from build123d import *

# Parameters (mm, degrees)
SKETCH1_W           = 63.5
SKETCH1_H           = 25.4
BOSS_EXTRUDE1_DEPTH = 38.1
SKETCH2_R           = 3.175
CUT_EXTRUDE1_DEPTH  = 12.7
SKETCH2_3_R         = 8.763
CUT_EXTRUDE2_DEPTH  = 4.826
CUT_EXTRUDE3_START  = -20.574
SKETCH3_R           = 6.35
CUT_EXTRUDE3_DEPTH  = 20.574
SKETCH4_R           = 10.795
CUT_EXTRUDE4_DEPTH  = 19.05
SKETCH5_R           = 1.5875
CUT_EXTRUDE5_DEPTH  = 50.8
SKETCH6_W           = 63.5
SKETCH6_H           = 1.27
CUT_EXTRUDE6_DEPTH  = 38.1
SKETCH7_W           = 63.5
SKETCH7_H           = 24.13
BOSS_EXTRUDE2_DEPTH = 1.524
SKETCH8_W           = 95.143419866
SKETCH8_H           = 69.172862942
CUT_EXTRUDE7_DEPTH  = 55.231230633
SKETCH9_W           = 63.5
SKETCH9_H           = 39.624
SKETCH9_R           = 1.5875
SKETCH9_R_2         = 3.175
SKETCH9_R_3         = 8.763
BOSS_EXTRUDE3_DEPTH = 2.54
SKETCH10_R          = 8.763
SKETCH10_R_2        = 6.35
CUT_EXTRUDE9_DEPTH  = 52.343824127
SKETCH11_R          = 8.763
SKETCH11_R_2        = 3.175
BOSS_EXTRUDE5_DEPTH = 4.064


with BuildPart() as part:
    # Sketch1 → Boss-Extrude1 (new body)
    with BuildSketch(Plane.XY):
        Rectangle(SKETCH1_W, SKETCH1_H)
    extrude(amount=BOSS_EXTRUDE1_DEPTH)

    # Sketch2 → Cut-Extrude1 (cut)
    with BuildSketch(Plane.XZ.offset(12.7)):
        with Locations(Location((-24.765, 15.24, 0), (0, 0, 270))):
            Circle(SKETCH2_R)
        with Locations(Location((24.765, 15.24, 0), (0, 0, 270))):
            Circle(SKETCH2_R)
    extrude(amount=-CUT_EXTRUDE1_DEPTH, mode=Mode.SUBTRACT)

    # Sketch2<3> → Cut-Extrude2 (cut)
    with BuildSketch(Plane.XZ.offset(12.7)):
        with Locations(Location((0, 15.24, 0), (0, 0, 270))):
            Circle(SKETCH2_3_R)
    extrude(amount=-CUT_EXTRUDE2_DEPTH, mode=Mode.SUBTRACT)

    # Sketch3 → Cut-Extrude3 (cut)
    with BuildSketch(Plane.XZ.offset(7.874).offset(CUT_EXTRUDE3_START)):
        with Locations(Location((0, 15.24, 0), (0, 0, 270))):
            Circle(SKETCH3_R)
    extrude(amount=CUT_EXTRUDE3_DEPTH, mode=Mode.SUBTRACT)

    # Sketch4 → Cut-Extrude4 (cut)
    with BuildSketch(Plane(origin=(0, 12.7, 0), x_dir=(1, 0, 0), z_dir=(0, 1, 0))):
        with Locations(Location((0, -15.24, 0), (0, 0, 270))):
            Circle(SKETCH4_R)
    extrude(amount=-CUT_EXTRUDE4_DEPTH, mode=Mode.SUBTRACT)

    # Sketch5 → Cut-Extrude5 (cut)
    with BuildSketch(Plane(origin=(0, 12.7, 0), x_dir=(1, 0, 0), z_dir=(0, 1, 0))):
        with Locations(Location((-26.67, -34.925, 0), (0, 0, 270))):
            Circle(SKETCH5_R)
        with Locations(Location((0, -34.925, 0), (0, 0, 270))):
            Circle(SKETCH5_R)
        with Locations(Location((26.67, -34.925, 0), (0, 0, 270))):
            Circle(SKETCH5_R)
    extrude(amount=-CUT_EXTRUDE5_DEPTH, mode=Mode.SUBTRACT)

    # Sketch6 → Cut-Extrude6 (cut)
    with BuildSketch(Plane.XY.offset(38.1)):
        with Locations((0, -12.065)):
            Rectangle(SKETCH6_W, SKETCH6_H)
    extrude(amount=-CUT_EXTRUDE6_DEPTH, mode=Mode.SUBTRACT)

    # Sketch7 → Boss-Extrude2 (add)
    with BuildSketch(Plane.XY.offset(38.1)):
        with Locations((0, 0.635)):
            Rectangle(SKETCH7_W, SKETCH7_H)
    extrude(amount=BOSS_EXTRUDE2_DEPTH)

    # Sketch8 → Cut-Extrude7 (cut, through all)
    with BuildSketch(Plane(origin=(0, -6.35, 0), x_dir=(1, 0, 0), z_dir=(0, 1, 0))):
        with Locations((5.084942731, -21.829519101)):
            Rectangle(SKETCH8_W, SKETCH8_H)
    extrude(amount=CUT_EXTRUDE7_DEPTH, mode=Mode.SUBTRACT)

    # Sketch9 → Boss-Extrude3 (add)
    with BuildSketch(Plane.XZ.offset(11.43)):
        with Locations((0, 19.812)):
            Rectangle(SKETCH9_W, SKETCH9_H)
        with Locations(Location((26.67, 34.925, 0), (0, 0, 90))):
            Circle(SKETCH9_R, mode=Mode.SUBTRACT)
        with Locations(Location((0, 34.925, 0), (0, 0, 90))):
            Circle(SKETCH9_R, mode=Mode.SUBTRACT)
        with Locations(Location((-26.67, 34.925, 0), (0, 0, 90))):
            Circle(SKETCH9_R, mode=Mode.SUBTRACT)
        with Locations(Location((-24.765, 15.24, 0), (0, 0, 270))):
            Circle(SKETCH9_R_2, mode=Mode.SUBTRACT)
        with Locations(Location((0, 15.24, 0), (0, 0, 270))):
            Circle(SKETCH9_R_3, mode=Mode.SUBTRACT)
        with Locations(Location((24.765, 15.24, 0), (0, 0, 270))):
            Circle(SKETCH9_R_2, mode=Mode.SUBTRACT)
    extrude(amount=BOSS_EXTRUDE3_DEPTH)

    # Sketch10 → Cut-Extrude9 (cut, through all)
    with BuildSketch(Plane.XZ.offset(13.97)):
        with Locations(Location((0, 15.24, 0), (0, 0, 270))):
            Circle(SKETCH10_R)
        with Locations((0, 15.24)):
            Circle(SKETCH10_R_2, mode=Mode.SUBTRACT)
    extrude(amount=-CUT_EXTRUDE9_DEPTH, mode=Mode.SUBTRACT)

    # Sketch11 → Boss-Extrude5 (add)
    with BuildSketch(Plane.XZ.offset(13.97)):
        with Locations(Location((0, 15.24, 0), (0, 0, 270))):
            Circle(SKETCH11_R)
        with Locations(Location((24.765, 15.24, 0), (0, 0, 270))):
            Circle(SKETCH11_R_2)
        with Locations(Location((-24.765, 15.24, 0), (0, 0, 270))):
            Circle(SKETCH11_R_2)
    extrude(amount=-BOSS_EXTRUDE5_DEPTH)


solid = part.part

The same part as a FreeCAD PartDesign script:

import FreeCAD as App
import Part
import Sketcher
Q = App.Units.Quantity


def add_polygon(sketch, points):
    """Adds a closed chain of lines whose ends are joined by coincident constraints."""
    first, n = sketch.GeometryCount, len(points)
    for a, b in zip(points, points[1:] + points[:1]):
        sketch.addGeometry(Part.LineSegment(App.Vector(*a, 0), App.Vector(*b, 0)), False)
    for i in range(n):
        sketch.addConstraint(Sketcher.Constraint("Coincident", first + i, 2, first + (i + 1) % n, 1))

doc = App.newDocument("Part")
body = doc.addObject("PartDesign::Body", "Body")

# Sketch on XY plane
sketch1 = doc.addObject("Sketcher::SketchObject", "Sketch")
body.addObject(sketch1)
sketch1.AttachmentSupport = (doc.XY_Plane, [""])
sketch1.MapMode = "FlatFace"
add_polygon(sketch1, [(-32, 13), (-32, -13), (32, -13), (32, 13)])  # lines 0-3
sketch1.addConstraint([
    Sketcher.Constraint("Vertical", 0),
    Sketcher.Constraint("Horizontal", 1),
    Sketcher.Constraint("Vertical", 2),
    Sketcher.Constraint("Horizontal", 3),
    Sketcher.Constraint("Symmetric", 0, 2, 2, 2, -1, 1),
    Sketcher.Constraint("DistanceY", 0, 2, 0, 1, Q("1 in")),
    Sketcher.Constraint("DistanceX", 1, 1, 1, 2, Q("2.5 in")),
])
pad1 = doc.addObject("PartDesign::Pad", "Pad")
body.addObject(pad1)
pad1.Profile = sketch1
pad1.Length = Q("1.5 in")

# Sketch on XZ plane
sketch2 = doc.addObject("Sketcher::SketchObject", "Sketch001")
body.addObject(sketch2)
sketch2.AttachmentSupport = (doc.XZ_Plane, [""])
sketch2.MapMode = "FlatFace"
sketch2.AttachmentOffset = App.Placement(App.Vector(0, 0, 0.5 * 25.4), App.Rotation())
sketch2.addGeometry([
    Part.Circle(App.Vector(-24.8, 15.2, 0), App.Vector(0, 0, 1), 3.2),
    Part.Circle(App.Vector(24.8, 15.2, 0), App.Vector(0, 0, 1), 3.2),
], False)
sketch2.addConstraint([
    Sketcher.Constraint("Equal", 0, 1),
    Sketcher.Constraint("Symmetric", 0, 3, 1, 3, -2),
    Sketcher.Constraint("Diameter", 0, Q("0.25 in")),
    Sketcher.Constraint("DistanceY", -1, 1, 0, 3, Q("0.6 in")),
    Sketcher.Constraint("DistanceX", 0, 3, 1, 3, Q("1.95 in")),
])
pocket1 = doc.addObject("PartDesign::Pocket", "Pocket")
body.addObject(pocket1)
pocket1.Profile = sketch2
pocket1.Length = Q("0.5 in")

# Sketch on XZ plane
sketch3 = doc.addObject("Sketcher::SketchObject", "Sketch002")
body.addObject(sketch3)
sketch3.AttachmentSupport = (doc.XZ_Plane, [""])
sketch3.MapMode = "FlatFace"
sketch3.AttachmentOffset = App.Placement(App.Vector(0, 0, 0.5 * 25.4), App.Rotation())
sketch3.addGeometry(Part.Circle(App.Vector(0, 15, 0), App.Vector(0, 0, 1), 9), False)
sketch3.addConstraint([
    Sketcher.Constraint("PointOnObject", 0, 3, -2),
    Sketcher.Constraint("Diameter", 0, Q("0.69 in")),
    Sketcher.Constraint("DistanceY", -1, 1, 0, 3, Q("0.6 in")),
])
pocket2 = doc.addObject("PartDesign::Pocket", "Pocket001")
body.addObject(pocket2)
pocket2.Profile = sketch3
pocket2.Length = Q("0.19 in")

# Sketch on XZ plane
sketch4 = doc.addObject("Sketcher::SketchObject", "Sketch003")
body.addObject(sketch4)
sketch4.AttachmentSupport = (doc.XZ_Plane, [""])
sketch4.MapMode = "FlatFace"
sketch4.AttachmentOffset = App.Placement(App.Vector(0, 0, -0.5 * 25.4), App.Rotation())
sketch4.addGeometry(Part.Circle(App.Vector(0, 15, 0), App.Vector(0, 0, 1), 6), False)
sketch4.addConstraint([
    Sketcher.Constraint("PointOnObject", 0, 3, -2),
    Sketcher.Constraint("Diameter", 0, Q("0.5 in")),
    Sketcher.Constraint("DistanceY", -1, 1, 0, 3, Q("0.6 in")),
])
pocket3 = doc.addObject("PartDesign::Pocket", "Pocket002")
body.addObject(pocket3)
pocket3.Profile = sketch4
pocket3.Length = Q("0.81 in")
pocket3.Reversed = True

# Sketch on XZ plane
sketch5 = doc.addObject("Sketcher::SketchObject", "Sketch004")
body.addObject(sketch5)
sketch5.AttachmentSupport = (doc.XZ_Plane, [""])
sketch5.MapMode = "FlatFace"
sketch5.AttachmentOffset = App.Placement(App.Vector(0, 0, -0.5 * 25.4), App.Rotation())
sketch5.addGeometry(Part.Circle(App.Vector(0, 15, 0), App.Vector(0, 0, 1), 11), False)
sketch5.addConstraint([
    Sketcher.Constraint("PointOnObject", 0, 3, -2),
    Sketcher.Constraint("Diameter", 0, Q("0.85 in")),
    Sketcher.Constraint("DistanceY", -1, 1, 0, 3, Q("0.6 in")),
])
pocket4 = doc.addObject("PartDesign::Pocket", "Pocket003")
body.addObject(pocket4)
pocket4.Profile = sketch5
pocket4.Length = Q("0.75 in")
pocket4.Reversed = True

# Sketch on XZ plane
sketch6 = doc.addObject("Sketcher::SketchObject", "Sketch005")
body.addObject(sketch6)
sketch6.AttachmentSupport = (doc.XZ_Plane, [""])
sketch6.MapMode = "FlatFace"
sketch6.AttachmentOffset = App.Placement(App.Vector(0, 0, -0.5 * 25.4), App.Rotation())
sketch6.addGeometry([
    Part.Circle(App.Vector(-26.7, 34.9, 0), App.Vector(0, 0, 1), 1.6),
    Part.Circle(App.Vector(0, 34.9, 0), App.Vector(0, 0, 1), 1.6),
    Part.Circle(App.Vector(26.7, 34.9, 0), App.Vector(0, 0, 1), 1.6),
], False)
sketch6.addConstraint([
    Sketcher.Constraint("Equal", 0, 1),
    Sketcher.Constraint("Equal", 1, 2),
    Sketcher.Constraint("Symmetric", 0, 3, 2, 3, -2),
    Sketcher.Constraint("PointOnObject", 1, 3, -2),
    Sketcher.Constraint("Horizontal", 0, 3, 1, 3),
    Sketcher.Constraint("Diameter", 0, Q("0.125 in")),
    Sketcher.Constraint("DistanceX", 0, 3, 2, 3, Q("2.1 in")),
    Sketcher.Constraint("DistanceY", -1, 1, 0, 3, Q("1.375 in")),
])
pocket5 = doc.addObject("PartDesign::Pocket", "Pocket004")
body.addObject(pocket5)
pocket5.Profile = sketch6
pocket5.Length = Q("2 in")
pocket5.Reversed = True

# Sketch on XY plane
sketch7 = doc.addObject("Sketcher::SketchObject", "Sketch006")
body.addObject(sketch7)
sketch7.AttachmentSupport = (doc.XY_Plane, [""])
sketch7.MapMode = "FlatFace"
sketch7.AttachmentOffset = App.Placement(App.Vector(0, 0, 1.5 * 25.4), App.Rotation())
add_polygon(sketch7, [(-31.8, -11.4), (-31.8, -12.7), (31.8, -12.7), (31.8, -11.4)])  # lines 0-3
sketch7.addConstraint([
    Sketcher.Constraint("Vertical", 0),
    Sketcher.Constraint("Horizontal", 1),
    Sketcher.Constraint("Vertical", 2),
    Sketcher.Constraint("Horizontal", 3),
    Sketcher.Constraint("DistanceX", 1, 1, 1, 2, Q("2.5 in")),
    Sketcher.Constraint("DistanceY", 0, 2, 0, 1, Q("0.05 in")),
    Sketcher.Constraint("DistanceY", 0, 2, -1, 1, Q("0.5 in")),
    Sketcher.Constraint("DistanceX", 0, 2, -1, 1, Q("1.25 in")),
])
pocket6 = doc.addObject("PartDesign::Pocket", "Pocket005")
body.addObject(pocket6)
pocket6.Profile = sketch7
pocket6.Length = Q("1.5 in")

# Sketch on XY plane
sketch8 = doc.addObject("Sketcher::SketchObject", "Sketch007")
body.addObject(sketch8)
sketch8.AttachmentSupport = (doc.XY_Plane, [""])
sketch8.MapMode = "FlatFace"
sketch8.AttachmentOffset = App.Placement(App.Vector(0, 0, 1.5 * 25.4), App.Rotation())
add_polygon(sketch8, [(-32, 13), (-32, -11), (32, -11), (32, 13)])  # lines 0-3
sketch8.addConstraint([
    Sketcher.Constraint("Vertical", 0),
    Sketcher.Constraint("Horizontal", 1),
    Sketcher.Constraint("Vertical", 2),
    Sketcher.Constraint("Horizontal", 3),
    Sketcher.Constraint("DistanceX", 1, 1, 1, 2, Q("2.5 in")),
    Sketcher.Constraint("DistanceY", 0, 2, 0, 1, Q("0.95 in")),
    Sketcher.Constraint("DistanceY", -1, 1, 2, 2, Q("0.5 in")),
    Sketcher.Constraint("DistanceX", 0, 2, -1, 1, Q("1.25 in")),
])
pad2 = doc.addObject("PartDesign::Pad", "Pad001")
body.addObject(pad2)
pad2.Profile = sketch8
pad2.Length = Q("0.06 in")

# Sketch on XZ plane
sketch9 = doc.addObject("Sketcher::SketchObject", "Sketch008")
body.addObject(sketch9)
sketch9.AttachmentSupport = (doc.XZ_Plane, [""])
sketch9.MapMode = "FlatFace"
sketch9.AttachmentOffset = App.Placement(App.Vector(0, 0, 0.25 * 25.4), App.Rotation())
add_polygon(sketch9, [(-42, -13), (-42, 56), (53, 56), (53, -13)])  # lines 0-3
sketch9.addConstraint([
    Sketcher.Constraint("Vertical", 0),
    Sketcher.Constraint("Horizontal", 1),
    Sketcher.Constraint("Vertical", 2),
    Sketcher.Constraint("Horizontal", 3),
    Sketcher.Constraint("DistanceX", 1, 1, 1, 2, Q("95.14342 mm")),
    Sketcher.Constraint("DistanceY", 0, 1, 0, 2, Q("69.172863 mm")),
    Sketcher.Constraint("DistanceY", -1, 1, 0, 2, Q("56.415951 mm")),
    Sketcher.Constraint("DistanceX", 0, 2, -1, 1, Q("42.486767 mm")),
])
pocket7 = doc.addObject("PartDesign::Pocket", "Pocket006")
body.addObject(pocket7)
pocket7.Profile = sketch9
pocket7.Type = "ThroughAll"

# Sketch on XZ plane
sketch10 = doc.addObject("Sketcher::SketchObject", "Sketch009")
body.addObject(sketch10)
sketch10.AttachmentSupport = (doc.XZ_Plane, [""])
sketch10.MapMode = "FlatFace"
sketch10.AttachmentOffset = App.Placement(App.Vector(0, 0, 0.45 * 25.4), App.Rotation())
add_polygon(sketch10, [(-31.8, 39.6), (-31.8, 0), (31.8, 0), (31.8, 39.6)])  # lines 0-3
sketch10.addGeometry(Part.Circle(App.Vector(-24.8, 15.2, 0), App.Vector(0, 0, 1), 3.2), False)  # 4
sketch10.addGeometry(Part.Circle(App.Vector(0, 15.2, 0), App.Vector(0, 0, 1), 8.8), False)  # 5
sketch10.addGeometry(Part.Circle(App.Vector(24.8, 15.2, 0), App.Vector(0, 0, 1), 3.2), False)  # 6
sketch10.addGeometry(Part.Circle(App.Vector(-26.7, 34.9, 0), App.Vector(0, 0, 1), 1.6), False)  # 7
sketch10.addGeometry(Part.Circle(App.Vector(0, 34.9, 0), App.Vector(0, 0, 1), 1.6), False)  # 8
sketch10.addGeometry(Part.Circle(App.Vector(26.7, 34.9, 0), App.Vector(0, 0, 1), 1.6), False)  # 9
sketch10.addConstraint([
    Sketcher.Constraint("Vertical", 0),
    Sketcher.Constraint("Horizontal", 1),
    Sketcher.Constraint("Vertical", 2),
    Sketcher.Constraint("Horizontal", 3),
    Sketcher.Constraint("Equal", 4, 6),
    Sketcher.Constraint("Equal", 7, 8),
    Sketcher.Constraint("Equal", 8, 9),
    Sketcher.Constraint("Symmetric", 0, 2, 1, 2, -1, 1),
    Sketcher.Constraint("Symmetric", 4, 3, 6, 3, -2),
    Sketcher.Constraint("Symmetric", 7, 3, 9, 3, -2),
    Sketcher.Constraint("PointOnObject", 5, 3, -2),
    Sketcher.Constraint("PointOnObject", 8, 3, -2),
    Sketcher.Constraint("Horizontal", 4, 3, 5, 3),
    Sketcher.Constraint("Horizontal", 7, 3, 8, 3),
    Sketcher.Constraint("Diameter", 4, Q("0.25 in")),
    Sketcher.Constraint("Diameter", 5, Q("0.69 in")),
    Sketcher.Constraint("Diameter", 7, Q("0.125 in")),
    Sketcher.Constraint("DistanceX", 1, 1, 1, 2, Q("2.5 in")),
    Sketcher.Constraint("DistanceY", 0, 2, 0, 1, Q("1.56 in")),
    Sketcher.Constraint("DistanceY", -1, 1, 4, 3, Q("0.6 in")),
    Sketcher.Constraint("DistanceX", 7, 3, 9, 3, Q("2.1 in")),
    Sketcher.Constraint("DistanceX", 4, 3, 6, 3, Q("1.95 in")),
    Sketcher.Constraint("DistanceY", -1, 1, 7, 3, Q("1.375 in")),
])
pad3 = doc.addObject("PartDesign::Pad", "Pad002")
body.addObject(pad3)
pad3.Profile = sketch10
pad3.Length = Q("0.1 in")

# Sketch on XZ plane
sketch11 = doc.addObject("Sketcher::SketchObject", "Sketch010")
body.addObject(sketch11)
sketch11.AttachmentSupport = (doc.XZ_Plane, [""])
sketch11.MapMode = "FlatFace"
sketch11.AttachmentOffset = App.Placement(App.Vector(0, 0, 0.55 * 25.4), App.Rotation())
sketch11.addGeometry([
    Part.Circle(App.Vector(0, 15, 0), App.Vector(0, 0, 1), 9),
    Part.Circle(App.Vector(0, 15, 0), App.Vector(0, 0, 1), 6),
], False)
sketch11.addConstraint([
    Sketcher.Constraint("Coincident", 1, 3, 0, 3),
    Sketcher.Constraint("PointOnObject", 0, 3, -2),
    Sketcher.Constraint("Diameter", 1, Q("0.5 in")),
    Sketcher.Constraint("Diameter", 0, Q("0.69 in")),
    Sketcher.Constraint("DistanceY", -1, 1, 0, 3, Q("0.6 in")),
])
pocket8 = doc.addObject("PartDesign::Pocket", "Pocket007")
body.addObject(pocket8)
pocket8.Profile = sketch11
pocket8.Type = "ThroughAll"

# Sketch on XZ plane
sketch12 = doc.addObject("Sketcher::SketchObject", "Sketch011")
body.addObject(sketch12)
sketch12.AttachmentSupport = (doc.XZ_Plane, [""])
sketch12.MapMode = "FlatFace"
sketch12.AttachmentOffset = App.Placement(App.Vector(0, 0, 0.55 * 25.4), App.Rotation())
sketch12.addGeometry([
    Part.Circle(App.Vector(0, 15.2, 0), App.Vector(0, 0, 1), 8.8),
    Part.Circle(App.Vector(24.8, 15.2, 0), App.Vector(0, 0, 1), 3.2),
    Part.Circle(App.Vector(-24.8, 15.2, 0), App.Vector(0, 0, 1), 3.2),
], False)
sketch12.addConstraint([
    Sketcher.Constraint("Equal", 1, 2),
    Sketcher.Constraint("Symmetric", 1, 3, 2, 3, -2),
    Sketcher.Constraint("PointOnObject", 0, 3, -2),
    Sketcher.Constraint("Horizontal", 0, 3, 1, 3),
    Sketcher.Constraint("Diameter", 0, Q("0.69 in")),
    Sketcher.Constraint("Diameter", 1, Q("0.25 in")),
    Sketcher.Constraint("DistanceY", -1, 1, 0, 3, Q("0.6 in")),
    Sketcher.Constraint("DistanceX", 2, 3, 1, 3, Q("1.95 in")),
])
pad4 = doc.addObject("PartDesign::Pad", "Pad003")
body.addObject(pad4)
pad4.Profile = sketch12
pad4.Length = Q("0.16 in")
pad4.Reversed = True

doc.recompute()
